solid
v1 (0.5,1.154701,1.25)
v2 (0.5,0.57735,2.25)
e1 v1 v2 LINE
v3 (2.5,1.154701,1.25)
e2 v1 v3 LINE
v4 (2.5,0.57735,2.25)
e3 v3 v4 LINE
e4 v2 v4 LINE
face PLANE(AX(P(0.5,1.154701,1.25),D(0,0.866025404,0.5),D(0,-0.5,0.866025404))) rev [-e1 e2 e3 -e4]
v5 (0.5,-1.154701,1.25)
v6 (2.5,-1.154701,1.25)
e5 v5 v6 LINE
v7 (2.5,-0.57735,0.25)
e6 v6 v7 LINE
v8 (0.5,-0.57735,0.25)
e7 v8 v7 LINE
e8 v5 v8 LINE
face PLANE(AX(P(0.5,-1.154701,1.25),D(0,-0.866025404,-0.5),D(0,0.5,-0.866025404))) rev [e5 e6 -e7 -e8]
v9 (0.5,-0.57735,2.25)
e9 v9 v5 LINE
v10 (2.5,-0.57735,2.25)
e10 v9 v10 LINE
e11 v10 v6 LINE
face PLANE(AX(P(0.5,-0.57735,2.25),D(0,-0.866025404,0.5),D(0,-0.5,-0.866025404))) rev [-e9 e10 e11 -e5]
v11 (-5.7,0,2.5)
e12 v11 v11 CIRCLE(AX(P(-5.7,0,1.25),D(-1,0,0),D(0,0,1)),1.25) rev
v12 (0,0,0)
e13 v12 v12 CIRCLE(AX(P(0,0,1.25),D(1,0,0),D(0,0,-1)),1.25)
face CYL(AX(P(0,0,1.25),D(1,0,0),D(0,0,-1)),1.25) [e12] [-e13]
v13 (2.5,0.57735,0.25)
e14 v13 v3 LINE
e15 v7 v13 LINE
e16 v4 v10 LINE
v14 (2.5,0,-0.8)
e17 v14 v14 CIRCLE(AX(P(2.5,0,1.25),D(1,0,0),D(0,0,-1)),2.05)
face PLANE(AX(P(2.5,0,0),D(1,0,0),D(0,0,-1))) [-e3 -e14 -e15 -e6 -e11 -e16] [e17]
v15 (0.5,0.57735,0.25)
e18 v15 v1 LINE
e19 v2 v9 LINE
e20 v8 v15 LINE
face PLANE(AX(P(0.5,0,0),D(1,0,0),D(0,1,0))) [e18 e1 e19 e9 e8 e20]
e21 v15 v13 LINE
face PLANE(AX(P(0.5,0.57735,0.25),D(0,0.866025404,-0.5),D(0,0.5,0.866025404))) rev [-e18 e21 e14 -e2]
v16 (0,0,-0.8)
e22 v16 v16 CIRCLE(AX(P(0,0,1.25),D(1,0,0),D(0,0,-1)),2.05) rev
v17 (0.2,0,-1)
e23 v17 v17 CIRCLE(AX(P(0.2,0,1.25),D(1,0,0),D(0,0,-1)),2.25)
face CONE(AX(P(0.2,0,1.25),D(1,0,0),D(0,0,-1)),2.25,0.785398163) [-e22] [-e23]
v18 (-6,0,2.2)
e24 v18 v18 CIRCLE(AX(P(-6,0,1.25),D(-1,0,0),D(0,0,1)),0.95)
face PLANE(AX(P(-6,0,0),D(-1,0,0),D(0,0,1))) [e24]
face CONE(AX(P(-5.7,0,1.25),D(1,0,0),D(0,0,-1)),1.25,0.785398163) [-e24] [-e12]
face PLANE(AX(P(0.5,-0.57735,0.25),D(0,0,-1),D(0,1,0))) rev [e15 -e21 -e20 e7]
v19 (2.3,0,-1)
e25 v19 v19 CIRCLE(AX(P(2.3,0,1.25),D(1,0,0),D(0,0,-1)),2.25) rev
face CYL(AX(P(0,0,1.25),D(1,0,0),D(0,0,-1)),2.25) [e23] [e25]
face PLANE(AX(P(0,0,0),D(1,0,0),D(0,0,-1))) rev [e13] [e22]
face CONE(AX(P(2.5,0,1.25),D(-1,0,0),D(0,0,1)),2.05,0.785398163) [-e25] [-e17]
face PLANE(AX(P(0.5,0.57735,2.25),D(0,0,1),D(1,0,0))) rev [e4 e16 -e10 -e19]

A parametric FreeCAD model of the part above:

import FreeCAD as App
import Part
import Sketcher

V = App.Vector
Q = App.Units.Quantity


def edges_at(feature, points):
    """Names of the edges that pass closest to the given points."""
    edges = feature.Shape.Edges
    near = lambda p: min(range(len(edges)), key=lambda i: edges[i].distToShape(Part.Vertex(*p))[0])
    return sorted({f"Edge{near(p) + 1}" for p in points})

doc = App.newDocument("Part")
body = doc.addObject("PartDesign::Body", "Body")

# Sketch on XZ plane
sketch1 = body.newObject("Sketcher::SketchObject", "Sketch")
sketch1.AttachmentSupport = (doc.getObject("XZ_Plane"), [""])
sketch1.MapMode = "FlatFace"
sketch1.addGeometry(Part.LineSegment(V(-6, 0, 0), V(-6, 1.2, 0)), False)
sketch1.addGeometry(Part.LineSegment(V(-6, 1.2, 0), V(2.5, 1.2, 0)), False)
sketch1.addGeometry(Part.LineSegment(V(2.5, 1.2, 0), V(2.5, -1, 0)), False)
sketch1.addGeometry(Part.LineSegment(V(2.5, -1, 0), V(0, -1, 0)), False)
sketch1.addGeometry(Part.LineSegment(V(0, -1, 0), V(0, 0, 0)), False)
sketch1.addGeometry(Part.LineSegment(V(0, 0, 0), V(-6, 0, 0)), False)
sketch1.addGeometry(Part.LineSegment(V(2.5, 1.2, 0), V(-6, 1.2, 0)), True)  # axis
sketch1.addConstraint(Sketcher.Constraint("Coincident", 0, 2, 1, 1))
sketch1.addConstraint(Sketcher.Constraint("Coincident", 1, 2, 2, 1))
sketch1.addConstraint(Sketcher.Constraint("Coincident", 2, 2, 3, 1))
sketch1.addConstraint(Sketcher.Constraint("Coincident", 3, 2, 4, 1))
sketch1.addConstraint(Sketcher.Constraint("Coincident", 4, 2, 5, 1))
sketch1.addConstraint(Sketcher.Constraint("Coincident", 5, 2, 0, 1))
sketch1.addConstraint(Sketcher.Constraint("Vertical", 0))
sketch1.addConstraint(Sketcher.Constraint("Horizontal", 1))
sketch1.addConstraint(Sketcher.Constraint("Vertical", 2))
sketch1.addConstraint(Sketcher.Constraint("Horizontal", 3))
sketch1.addConstraint(Sketcher.Constraint("Vertical", 4))
sketch1.addConstraint(Sketcher.Constraint("Horizontal", 5))
sketch1.addConstraint(Sketcher.Constraint("Horizontal", 6))
sketch1.addConstraint(Sketcher.Constraint("Coincident", 4, 2, -1, 1))
sketch1.addConstraint(Sketcher.Constraint("Coincident", 6, 1, 1, 2))
sketch1.addConstraint(Sketcher.Constraint("Vertical", 5, 2, 6, 2))
sketch1.addConstraint(Sketcher.Constraint("DistanceX", 5, 2, 5, 1, 6.0))
sketch1.addConstraint(Sketcher.Constraint("DistanceY", 4, 1, 4, 2, 1.0))
sketch1.addConstraint(Sketcher.Constraint("DistanceX", 1, 1, 1, 2, 8.5))
sketch1.addConstraint(Sketcher.Constraint("DistanceY", 0, 1, 0, 2, 1.25))
revolution = body.newObject("PartDesign::Revolution", "Revolution")
revolution.Profile = sketch1
revolution.ReferenceAxis = (sketch1, ["Axis0"])
revolution.Angle = 360

# Sketch on YZ plane
sketch2 = body.newObject("Sketcher::SketchObject", "Sketch001")
sketch2.AttachmentSupport = (doc.getObject("YZ_Plane"), [""])
sketch2.MapMode = "FlatFace"
sketch2.AttachmentOffset = App.Placement(V(0, 0, 2.5), App.Rotation())
sketch2.addGeometry(Part.LineSegment(V(1.2, 1.2, 0), V(0.6, 2.2, 0)), False)
sketch2.addGeometry(Part.LineSegment(V(0.6, 2.2, 0), V(-0.6, 2.2, 0)), False)
sketch2.addGeometry(Part.LineSegment(V(-0.6, 2.2, 0), V(-1.2, 1.2, 0)), False)
sketch2.addGeometry(Part.LineSegment(V(-1.2, 1.2, 0), V(-0.6, 0.2, 0)), False)
sketch2.addGeometry(Part.LineSegment(V(-0.6, 0.2, 0), V(0.6, 0.2, 0)), False)
sketch2.addGeometry(Part.LineSegment(V(0.6, 0.2, 0), V(1.2, 1.2, 0)), False)
sketch2.addConstraint(Sketcher.Constraint("Coincident", 0, 2, 1, 1))
sketch2.addConstraint(Sketcher.Constraint("Coincident", 1, 2, 2, 1))
sketch2.addConstraint(Sketcher.Constraint("Coincident", 2, 2, 3, 1))
sketch2.addConstraint(Sketcher.Constraint("Coincident", 3, 2, 4, 1))
sketch2.addConstraint(Sketcher.Constraint("Coincident", 4, 2, 5, 1))
sketch2.addConstraint(Sketcher.Constraint("Coincident", 5, 2, 0, 1))
sketch2.addConstraint(Sketcher.Constraint("Horizontal", 1))
sketch2.addConstraint(Sketcher.Constraint("Horizontal", 4))
sketch2.addConstraint(Sketcher.Constraint("Symmetric", 2, 2, 5, 2, -2))
sketch2.addConstraint(Sketcher.Constraint("Parallel", 0, 3))
sketch2.addConstraint(Sketcher.Constraint("Parallel", 2, 5))
sketch2.addConstraint(Sketcher.Constraint("Vertical", 1, 2, 3, 2))
sketch2.addConstraint(Sketcher.Constraint("Vertical", 0, 2, 4, 2))
sketch2.addConstraint(Sketcher.Constraint("Angle", 0, Q("120 deg")))
sketch2.addConstraint(Sketcher.Constraint("DistanceY", 2, 2, 1, 2, 1.0))
sketch2.addConstraint(Sketcher.Constraint("DistanceY", -1, 1, 0, 2, 2.25))
sketch2.addConstraint(Sketcher.Constraint("DistanceX", 1, 2, 1, 1, 1.154701))
pocket1 = body.newObject("PartDesign::Pocket", "Pocket")
pocket1.Profile = sketch2
pocket1.Length = 2
doc.recompute()

chamfer = body.newObject("PartDesign::Chamfer", "Chamfer")
chamfer.Base = (pocket1, edges_at(pocket1, [(0, 0, 3.5), (2.5, 0, 3.5)]))
chamfer.Size = 0.2
doc.recompute()

chamfer2 = body.newObject("PartDesign::Chamfer", "Chamfer001")
chamfer2.Base = (chamfer, edges_at(chamfer, [(-6, 0, 2.5)]))
chamfer2.Size = 0.3

doc.recompute()
